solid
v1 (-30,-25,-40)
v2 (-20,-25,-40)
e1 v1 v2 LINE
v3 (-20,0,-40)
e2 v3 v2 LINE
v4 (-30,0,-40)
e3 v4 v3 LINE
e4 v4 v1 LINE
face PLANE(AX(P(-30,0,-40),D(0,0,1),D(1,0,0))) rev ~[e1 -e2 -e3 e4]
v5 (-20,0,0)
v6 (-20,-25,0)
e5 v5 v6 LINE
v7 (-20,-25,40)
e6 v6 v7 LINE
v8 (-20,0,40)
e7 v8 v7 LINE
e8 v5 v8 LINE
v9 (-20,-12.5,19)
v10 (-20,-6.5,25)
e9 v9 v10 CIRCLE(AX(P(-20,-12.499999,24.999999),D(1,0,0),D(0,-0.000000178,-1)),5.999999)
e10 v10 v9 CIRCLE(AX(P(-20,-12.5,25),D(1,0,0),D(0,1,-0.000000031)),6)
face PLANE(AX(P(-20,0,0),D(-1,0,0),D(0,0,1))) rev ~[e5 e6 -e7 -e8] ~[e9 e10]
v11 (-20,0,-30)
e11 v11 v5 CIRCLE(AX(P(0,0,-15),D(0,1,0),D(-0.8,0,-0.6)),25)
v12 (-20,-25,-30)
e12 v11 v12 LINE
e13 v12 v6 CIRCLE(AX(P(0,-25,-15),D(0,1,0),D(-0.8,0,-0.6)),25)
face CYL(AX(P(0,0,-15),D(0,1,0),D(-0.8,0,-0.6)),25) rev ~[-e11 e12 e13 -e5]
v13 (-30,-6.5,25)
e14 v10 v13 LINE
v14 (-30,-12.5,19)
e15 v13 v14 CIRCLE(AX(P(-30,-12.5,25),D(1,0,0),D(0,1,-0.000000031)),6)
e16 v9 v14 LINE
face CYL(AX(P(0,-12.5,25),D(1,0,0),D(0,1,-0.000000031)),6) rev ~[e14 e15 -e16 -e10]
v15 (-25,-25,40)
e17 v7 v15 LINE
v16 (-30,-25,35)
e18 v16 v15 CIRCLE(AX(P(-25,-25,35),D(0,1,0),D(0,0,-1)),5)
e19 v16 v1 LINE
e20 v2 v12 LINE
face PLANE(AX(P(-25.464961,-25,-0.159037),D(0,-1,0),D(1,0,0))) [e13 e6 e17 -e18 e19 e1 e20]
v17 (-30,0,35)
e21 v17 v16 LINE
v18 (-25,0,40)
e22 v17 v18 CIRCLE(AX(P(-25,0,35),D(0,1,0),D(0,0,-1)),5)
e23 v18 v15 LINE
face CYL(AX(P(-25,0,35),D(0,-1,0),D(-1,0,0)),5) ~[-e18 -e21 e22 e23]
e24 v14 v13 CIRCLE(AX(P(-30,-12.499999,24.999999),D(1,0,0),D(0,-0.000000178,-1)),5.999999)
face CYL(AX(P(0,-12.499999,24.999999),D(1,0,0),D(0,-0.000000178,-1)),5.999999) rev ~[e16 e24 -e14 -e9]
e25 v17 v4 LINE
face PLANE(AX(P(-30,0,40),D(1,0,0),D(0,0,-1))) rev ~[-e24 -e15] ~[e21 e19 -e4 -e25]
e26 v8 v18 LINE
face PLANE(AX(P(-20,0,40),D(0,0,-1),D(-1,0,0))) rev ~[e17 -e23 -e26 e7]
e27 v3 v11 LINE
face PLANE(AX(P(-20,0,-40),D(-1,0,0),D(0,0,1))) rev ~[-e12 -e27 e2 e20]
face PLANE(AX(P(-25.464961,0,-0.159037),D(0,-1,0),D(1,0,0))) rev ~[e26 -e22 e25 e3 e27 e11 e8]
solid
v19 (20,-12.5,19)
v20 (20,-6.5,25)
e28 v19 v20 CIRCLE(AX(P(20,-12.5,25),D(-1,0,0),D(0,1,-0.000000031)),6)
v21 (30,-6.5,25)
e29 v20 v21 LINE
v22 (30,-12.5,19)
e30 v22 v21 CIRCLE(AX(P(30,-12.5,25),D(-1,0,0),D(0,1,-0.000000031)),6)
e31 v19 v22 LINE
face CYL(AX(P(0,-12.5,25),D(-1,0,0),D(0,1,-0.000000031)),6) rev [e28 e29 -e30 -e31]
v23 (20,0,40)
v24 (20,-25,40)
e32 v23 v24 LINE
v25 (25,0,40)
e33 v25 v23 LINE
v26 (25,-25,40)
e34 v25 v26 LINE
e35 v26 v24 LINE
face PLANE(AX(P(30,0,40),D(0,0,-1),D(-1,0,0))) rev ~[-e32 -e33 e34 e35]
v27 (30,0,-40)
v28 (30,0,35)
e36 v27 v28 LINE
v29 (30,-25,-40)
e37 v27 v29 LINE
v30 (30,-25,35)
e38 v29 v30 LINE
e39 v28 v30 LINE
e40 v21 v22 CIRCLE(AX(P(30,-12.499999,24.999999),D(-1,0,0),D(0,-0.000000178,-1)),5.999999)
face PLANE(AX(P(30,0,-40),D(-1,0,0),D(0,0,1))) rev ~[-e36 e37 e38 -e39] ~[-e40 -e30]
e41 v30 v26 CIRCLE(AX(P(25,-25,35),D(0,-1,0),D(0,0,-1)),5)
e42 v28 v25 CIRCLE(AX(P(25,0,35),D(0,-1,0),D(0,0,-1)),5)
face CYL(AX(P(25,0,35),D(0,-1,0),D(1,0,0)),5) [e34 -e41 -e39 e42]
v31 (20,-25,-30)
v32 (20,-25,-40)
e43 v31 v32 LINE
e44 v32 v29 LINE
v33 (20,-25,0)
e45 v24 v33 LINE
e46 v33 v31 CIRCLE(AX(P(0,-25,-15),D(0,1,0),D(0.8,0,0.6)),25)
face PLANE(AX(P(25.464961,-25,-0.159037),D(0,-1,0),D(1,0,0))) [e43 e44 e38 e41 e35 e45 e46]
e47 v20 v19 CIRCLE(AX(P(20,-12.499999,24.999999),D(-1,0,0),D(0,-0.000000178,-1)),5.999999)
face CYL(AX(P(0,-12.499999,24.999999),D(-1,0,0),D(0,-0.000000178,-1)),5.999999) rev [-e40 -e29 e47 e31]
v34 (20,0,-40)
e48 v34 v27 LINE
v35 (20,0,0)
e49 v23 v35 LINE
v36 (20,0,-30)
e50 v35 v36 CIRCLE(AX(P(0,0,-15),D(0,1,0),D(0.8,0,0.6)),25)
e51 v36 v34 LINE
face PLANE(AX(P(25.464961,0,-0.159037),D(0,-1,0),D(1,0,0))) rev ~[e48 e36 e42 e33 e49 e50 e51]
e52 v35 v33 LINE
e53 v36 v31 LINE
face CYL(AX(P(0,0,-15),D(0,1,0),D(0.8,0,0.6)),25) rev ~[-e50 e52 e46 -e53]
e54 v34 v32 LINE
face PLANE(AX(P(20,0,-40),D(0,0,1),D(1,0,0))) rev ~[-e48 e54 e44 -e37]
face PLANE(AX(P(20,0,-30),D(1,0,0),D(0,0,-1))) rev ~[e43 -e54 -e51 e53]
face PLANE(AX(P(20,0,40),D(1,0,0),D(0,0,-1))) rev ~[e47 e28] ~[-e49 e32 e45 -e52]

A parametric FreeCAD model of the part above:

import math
import FreeCAD as App
import Part
import Sketcher
from FreeCAD import Vector


def edges_at(feature, points):
    """Names of the edges that pass closest to the given points."""
    edges = feature.Shape.Edges
    near = lambda p: min(range(len(edges)), key=lambda i: edges[i].distToShape(Part.Vertex(*p))[0])
    return sorted({f"Edge{near(p) + 1}" for p in points})

doc = App.newDocument("Part")
params = doc.addObject("Spreadsheet::Sheet", "Params")
for row, (alias, value) in enumerate([
    ("sketch1_radius", "25 mm"),
    ("sketch1_width", "10 mm"),
    ("sketch1_height", "80 mm"),
    ("pad1_length", "25 mm"),
    ("sketch2_radius", "5.999999 mm"),
    ("sketch3_radius", "5.999999 mm"),
    ("pocket2_length", "30 mm"),
    ("fillet_radius", "5 mm"),
], start=1):
    params.set(f"A{row}", alias)
    params.set(f"B{row}", "=" + value)
    params.setAlias(f"B{row}", alias)

body = doc.addObject("PartDesign::Body", "Body")
body.AllowCompound = True

# Sketch on XZ plane
sketch1 = body.newObject("Sketcher::SketchObject", "Sketch")
sketch1.AttachmentSupport = (doc.getObject("XZ_Plane"), [""])
sketch1.MapMode = "FlatFace"
sketch1.addGeometry([
    Part.LineSegment(Vector(-30, 40, 0), Vector(-30, -40, 0)),  # 0
    Part.LineSegment(Vector(-30, -40, 0), Vector(-20, -40, 0)),  # 1
    Part.LineSegment(Vector(-20, -40, 0), Vector(-20, -30, 0)),  # 2
    Part.ArcOfCircle(Part.Circle(Vector(0, -15, 0), Vector(0, 0, 1), 25), math.radians(143), math.radians(217)),  # 3
    Part.LineSegment(Vector(-20, 0, 0), Vector(-20, 40, 0)),  # 4
    Part.LineSegment(Vector(-20, 40, 0), Vector(-30, 40, 0)),  # 5
    Part.LineSegment(Vector(20, -40, 0), Vector(30, -40, 0)),  # 6
    Part.LineSegment(Vector(30, -40, 0), Vector(30, 40, 0)),  # 7
    Part.LineSegment(Vector(30, 40, 0), Vector(20, 40, 0)),  # 8
    Part.LineSegment(Vector(20, 40, 0), Vector(20, 0, 0)),  # 9
    Part.ArcOfCircle(Part.Circle(Vector(0, -15, 0), Vector(0, 0, 1), 25), math.radians(-37), math.radians(37)),  # 10
    Part.LineSegment(Vector(20, -30, 0), Vector(20, -40, 0)),  # 11
], False)
sketch1.addConstraint([
    Sketcher.Constraint("Coincident", 0, 2, 1, 1),
    Sketcher.Constraint("Coincident", 1, 2, 2, 1),
    Sketcher.Constraint("Coincident", 2, 2, 3, 2),
    Sketcher.Constraint("Coincident", 3, 1, 4, 1),
    Sketcher.Constraint("Coincident", 4, 2, 5, 1),
    Sketcher.Constraint("Coincident", 5, 2, 0, 1),
    Sketcher.Constraint("Coincident", 6, 2, 7, 1),
    Sketcher.Constraint("Coincident", 7, 2, 8, 1),
    Sketcher.Constraint("Coincident", 8, 2, 9, 1),
    Sketcher.Constraint("Coincident", 9, 2, 10, 2),
    Sketcher.Constraint("Coincident", 10, 1, 11, 1),
    Sketcher.Constraint("Coincident", 11, 2, 6, 1),
    Sketcher.Constraint("Vertical", 0),
    Sketcher.Constraint("Horizontal", 1),
    Sketcher.Constraint("Vertical", 2),
    Sketcher.Constraint("Vertical", 4),
    Sketcher.Constraint("Horizontal", 5),
    Sketcher.Constraint("Horizontal", 6),
    Sketcher.Constraint("Vertical", 7),
    Sketcher.Constraint("Horizontal", 8),
    Sketcher.Constraint("Vertical", 9),
    Sketcher.Constraint("Vertical", 11),
    Sketcher.Constraint("Coincident", 10, 3, 3, 3),
    Sketcher.Constraint("Equal", 3, 10),
    Sketcher.Constraint("Symmetric", 5, 2, 6, 2, -1, 1),
    Sketcher.Constraint("Symmetric", 1, 2, 8, 2, -1, 1),
    Sketcher.Constraint("Symmetric", 3, 1, 9, 2, -1, 1),
    Sketcher.Constraint("Symmetric", 2, 2, 10, 1, -2),
    Sketcher.Constraint("Horizontal", 1, 2, 6, 2),
    Sketcher.Constraint("Equal", 8, 2),
    Sketcher.Constraint("Radius", 3, 25.0),
    Sketcher.Constraint("DistanceX", 1, 1, 1, 2, 10.0),
    Sketcher.Constraint("DistanceY", 0, 2, 0, 1, 80.0),
])
sketch1.setExpression("Constraints[30]", "Params.sketch1_radius")
sketch1.setExpression("Constraints[31]", "Params.sketch1_width")
sketch1.setExpression("Constraints[32]", "Params.sketch1_height")
pad1 = body.newObject("PartDesign::Pad", "Pad")
pad1.Profile = sketch1
pad1.setExpression("Length", "Params.pad1_length")

# Sketch on YZ plane
sketch2 = body.newObject("Sketcher::SketchObject", "Sketch001")
sketch2.AttachmentSupport = (doc.getObject("YZ_Plane"), [""])
sketch2.MapMode = "FlatFace"
sketch2.addGeometry([
    Part.ArcOfCircle(Part.Circle(Vector(-12, 25, 0), Vector(0, 0, 1), 6), math.radians(-90), math.radians(0)),
    Part.ArcOfCircle(Part.Circle(Vector(-13, 25, 0), Vector(0, 0, 1), 6), math.radians(0), math.radians(270)),
], False)
sketch2.addConstraint([
    Sketcher.Constraint("Tangent", 0, 1, 1, 2),
    Sketcher.Constraint("Coincident", 1, 1, 0, 2),
    Sketcher.Constraint("Horizontal", 0, 3, 1, 1),
    Sketcher.Constraint("Vertical", 1, 3, 0, 1),
    Sketcher.Constraint("Radius", 0, 5.999999),
    Sketcher.Constraint("DistanceY", -1, 1, 0, 3, 24.999999),
    Sketcher.Constraint("DistanceX", 0, 3, -1, 1, 12.499999),
])
sketch2.setExpression("Constraints[4]", "Params.sketch2_radius")
pocket1 = body.newObject("PartDesign::Pocket", "Pocket")
pocket1.Profile = sketch2
pocket1.Type = "ThroughAll"
pocket1.Midplane = True

# Sketch on YZ plane
sketch3 = body.newObject("Sketcher::SketchObject", "Sketch002")
sketch3.AttachmentSupport = (doc.getObject("YZ_Plane"), [""])
sketch3.MapMode = "FlatFace"
sketch3.addGeometry([
    Part.ArcOfCircle(Part.Circle(Vector(-12, 25, 0), Vector(0, 0, 1), 6), math.radians(-90), math.radians(0)),
    Part.ArcOfCircle(Part.Circle(Vector(-13, 25, 0), Vector(0, 0, 1), 6), math.radians(0), math.radians(270)),
], False)
sketch3.addConstraint([
    Sketcher.Constraint("Tangent", 0, 1, 1, 2),
    Sketcher.Constraint("Coincident", 1, 1, 0, 2),
    Sketcher.Constraint("Horizontal", 0, 3, 1, 1),
    Sketcher.Constraint("Vertical", 1, 3, 0, 1),
    Sketcher.Constraint("Radius", 0, 5.999999),
    Sketcher.Constraint("DistanceY", -1, 1, 0, 3, 24.999999),
    Sketcher.Constraint("DistanceX", 0, 3, -1, 1, 12.499999),
])
sketch3.setExpression("Constraints[4]", "Params.sketch3_radius")
pocket2 = body.newObject("PartDesign::Pocket", "Pocket001")
pocket2.Profile = sketch3
pocket2.setExpression("Length", "Params.pocket2_length")
doc.recompute()

fillet = body.newObject("PartDesign::Fillet", "Fillet")
fillet.Base = (pocket2, edges_at(pocket2, [(30, -12.5, 40), (-30, -12.5, 40)]))
fillet.setExpression("Radius", "Params.fillet_radius")

doc.recompute()
